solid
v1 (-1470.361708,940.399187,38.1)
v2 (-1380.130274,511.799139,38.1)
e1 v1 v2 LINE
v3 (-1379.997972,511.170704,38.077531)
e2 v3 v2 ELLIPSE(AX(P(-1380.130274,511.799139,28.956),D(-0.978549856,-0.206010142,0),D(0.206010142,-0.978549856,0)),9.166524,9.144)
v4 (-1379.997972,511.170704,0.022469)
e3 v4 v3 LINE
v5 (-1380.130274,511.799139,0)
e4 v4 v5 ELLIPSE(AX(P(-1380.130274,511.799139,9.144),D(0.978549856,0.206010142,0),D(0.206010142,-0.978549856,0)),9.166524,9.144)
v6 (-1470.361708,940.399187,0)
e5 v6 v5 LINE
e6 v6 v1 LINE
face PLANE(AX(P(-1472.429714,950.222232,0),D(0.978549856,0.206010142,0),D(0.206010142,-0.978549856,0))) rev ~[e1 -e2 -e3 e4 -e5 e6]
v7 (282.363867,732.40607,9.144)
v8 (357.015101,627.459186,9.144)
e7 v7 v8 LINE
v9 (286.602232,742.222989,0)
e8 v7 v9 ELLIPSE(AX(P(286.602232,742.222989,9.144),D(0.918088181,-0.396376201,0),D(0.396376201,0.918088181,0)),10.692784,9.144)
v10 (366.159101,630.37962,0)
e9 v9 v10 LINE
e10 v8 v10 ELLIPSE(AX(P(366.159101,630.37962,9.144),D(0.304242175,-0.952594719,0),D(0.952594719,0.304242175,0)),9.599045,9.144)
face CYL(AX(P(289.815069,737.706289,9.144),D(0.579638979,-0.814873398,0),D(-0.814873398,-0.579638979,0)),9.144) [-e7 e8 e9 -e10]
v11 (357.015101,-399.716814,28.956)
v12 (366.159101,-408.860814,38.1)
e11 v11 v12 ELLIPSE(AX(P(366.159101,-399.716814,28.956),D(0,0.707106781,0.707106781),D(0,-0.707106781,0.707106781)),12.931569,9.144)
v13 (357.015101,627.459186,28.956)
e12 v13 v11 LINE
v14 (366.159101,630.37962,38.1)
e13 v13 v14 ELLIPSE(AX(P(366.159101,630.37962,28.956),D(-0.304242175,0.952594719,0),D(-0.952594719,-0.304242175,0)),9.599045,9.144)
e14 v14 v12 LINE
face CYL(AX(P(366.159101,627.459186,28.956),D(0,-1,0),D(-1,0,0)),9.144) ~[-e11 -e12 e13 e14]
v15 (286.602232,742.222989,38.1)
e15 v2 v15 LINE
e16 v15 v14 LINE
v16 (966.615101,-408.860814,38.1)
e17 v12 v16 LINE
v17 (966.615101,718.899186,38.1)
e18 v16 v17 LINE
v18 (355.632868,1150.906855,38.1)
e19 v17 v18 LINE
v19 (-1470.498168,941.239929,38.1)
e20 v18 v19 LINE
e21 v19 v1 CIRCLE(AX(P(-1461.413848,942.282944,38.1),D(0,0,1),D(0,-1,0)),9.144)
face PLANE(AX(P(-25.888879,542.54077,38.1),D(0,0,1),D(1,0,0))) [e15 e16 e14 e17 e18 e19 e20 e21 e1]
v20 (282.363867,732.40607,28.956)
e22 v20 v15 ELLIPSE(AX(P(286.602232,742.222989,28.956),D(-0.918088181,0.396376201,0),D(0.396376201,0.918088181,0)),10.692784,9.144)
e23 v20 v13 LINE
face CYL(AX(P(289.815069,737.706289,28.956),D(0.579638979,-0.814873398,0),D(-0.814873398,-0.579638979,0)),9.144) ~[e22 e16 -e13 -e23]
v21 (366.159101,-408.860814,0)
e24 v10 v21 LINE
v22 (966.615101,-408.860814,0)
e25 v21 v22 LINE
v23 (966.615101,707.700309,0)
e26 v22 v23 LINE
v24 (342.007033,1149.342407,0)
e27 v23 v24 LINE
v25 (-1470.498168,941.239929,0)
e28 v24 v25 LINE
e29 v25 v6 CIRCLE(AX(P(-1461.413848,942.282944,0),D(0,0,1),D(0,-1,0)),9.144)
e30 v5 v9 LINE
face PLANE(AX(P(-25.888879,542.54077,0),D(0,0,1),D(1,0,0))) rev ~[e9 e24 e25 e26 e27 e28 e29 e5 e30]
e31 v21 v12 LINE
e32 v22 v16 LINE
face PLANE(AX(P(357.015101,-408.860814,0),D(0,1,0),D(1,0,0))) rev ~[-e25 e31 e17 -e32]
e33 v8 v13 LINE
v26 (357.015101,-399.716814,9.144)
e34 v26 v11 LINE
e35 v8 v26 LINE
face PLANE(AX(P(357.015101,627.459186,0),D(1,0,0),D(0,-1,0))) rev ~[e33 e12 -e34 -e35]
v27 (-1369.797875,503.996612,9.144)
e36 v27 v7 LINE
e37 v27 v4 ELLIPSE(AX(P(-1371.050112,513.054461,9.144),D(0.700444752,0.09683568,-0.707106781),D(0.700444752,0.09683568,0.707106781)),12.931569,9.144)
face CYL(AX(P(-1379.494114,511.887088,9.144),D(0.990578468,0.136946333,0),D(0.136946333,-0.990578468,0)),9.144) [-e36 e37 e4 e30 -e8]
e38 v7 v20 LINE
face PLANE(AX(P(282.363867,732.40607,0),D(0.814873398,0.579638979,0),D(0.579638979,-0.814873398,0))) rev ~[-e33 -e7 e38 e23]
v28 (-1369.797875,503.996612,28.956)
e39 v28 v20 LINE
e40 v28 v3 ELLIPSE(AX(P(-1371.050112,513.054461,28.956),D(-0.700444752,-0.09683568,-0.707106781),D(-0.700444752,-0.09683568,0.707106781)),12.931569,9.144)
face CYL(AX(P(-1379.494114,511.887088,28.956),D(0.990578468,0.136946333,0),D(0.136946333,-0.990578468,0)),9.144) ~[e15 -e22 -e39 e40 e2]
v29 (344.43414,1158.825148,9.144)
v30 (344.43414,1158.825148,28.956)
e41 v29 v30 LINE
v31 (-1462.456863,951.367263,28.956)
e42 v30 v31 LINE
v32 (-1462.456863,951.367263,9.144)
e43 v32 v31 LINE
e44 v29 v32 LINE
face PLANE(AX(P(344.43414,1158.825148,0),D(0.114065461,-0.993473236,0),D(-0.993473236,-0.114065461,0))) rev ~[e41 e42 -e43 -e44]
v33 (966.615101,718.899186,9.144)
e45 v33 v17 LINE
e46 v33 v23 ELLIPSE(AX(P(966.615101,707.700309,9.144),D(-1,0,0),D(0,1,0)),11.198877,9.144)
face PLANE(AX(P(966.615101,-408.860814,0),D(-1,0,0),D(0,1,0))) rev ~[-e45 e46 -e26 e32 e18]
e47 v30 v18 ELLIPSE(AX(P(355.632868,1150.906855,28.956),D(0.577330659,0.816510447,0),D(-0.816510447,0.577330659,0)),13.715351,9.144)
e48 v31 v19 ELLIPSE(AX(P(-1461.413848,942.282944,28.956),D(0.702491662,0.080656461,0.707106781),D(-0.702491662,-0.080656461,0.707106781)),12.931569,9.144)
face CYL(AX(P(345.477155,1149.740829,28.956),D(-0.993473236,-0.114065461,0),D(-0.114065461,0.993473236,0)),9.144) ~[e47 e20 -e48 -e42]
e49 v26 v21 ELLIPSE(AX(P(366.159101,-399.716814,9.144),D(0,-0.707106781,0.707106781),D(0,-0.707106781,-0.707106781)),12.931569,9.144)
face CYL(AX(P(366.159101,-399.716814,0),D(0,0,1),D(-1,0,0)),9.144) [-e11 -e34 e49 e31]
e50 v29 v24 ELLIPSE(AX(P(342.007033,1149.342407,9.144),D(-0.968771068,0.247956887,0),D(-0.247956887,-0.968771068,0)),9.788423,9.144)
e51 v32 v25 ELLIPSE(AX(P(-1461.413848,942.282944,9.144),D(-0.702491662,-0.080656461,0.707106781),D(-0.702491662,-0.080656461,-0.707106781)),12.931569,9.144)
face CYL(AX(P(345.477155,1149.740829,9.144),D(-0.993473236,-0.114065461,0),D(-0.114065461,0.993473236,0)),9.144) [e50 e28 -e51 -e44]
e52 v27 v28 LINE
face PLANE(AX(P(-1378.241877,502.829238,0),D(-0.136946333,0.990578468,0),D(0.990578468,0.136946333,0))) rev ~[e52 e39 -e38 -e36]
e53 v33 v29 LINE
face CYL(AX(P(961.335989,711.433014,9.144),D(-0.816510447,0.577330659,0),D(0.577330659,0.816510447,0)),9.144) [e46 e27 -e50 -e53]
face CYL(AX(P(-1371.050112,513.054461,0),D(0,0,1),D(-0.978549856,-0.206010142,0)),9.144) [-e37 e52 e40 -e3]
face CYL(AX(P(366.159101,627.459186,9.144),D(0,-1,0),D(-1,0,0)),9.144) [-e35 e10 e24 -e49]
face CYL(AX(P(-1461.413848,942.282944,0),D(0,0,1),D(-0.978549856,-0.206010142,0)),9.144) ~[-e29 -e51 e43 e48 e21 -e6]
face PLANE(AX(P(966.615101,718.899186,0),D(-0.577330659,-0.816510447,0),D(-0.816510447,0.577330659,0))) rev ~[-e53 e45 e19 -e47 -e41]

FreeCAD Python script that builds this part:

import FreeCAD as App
import Part
import Sketcher

V = App.Vector
Q = App.Units.Quantity


def edges_at(feature, points):
    """Names of the edges that pass closest to the given points."""
    edges = feature.Shape.Edges
    near = lambda p: min(range(len(edges)), key=lambda i: edges[i].distToShape(Part.Vertex(*p))[0])
    return sorted({f"Edge{near(p) + 1}" for p in points})

doc = App.newDocument("Part")
params = doc.addObject("Spreadsheet::Sheet", "Params")
for row, (alias, value) in enumerate([
    ("sketch1_width", "24 in"),
    ("sketch1_length", "18 in"),
    ("sketch1_length2", "66 in"),
    ("sketch1_length3", "30 in"),
    ("sketch1_length4", "72 in"),
    ("pad1_length", "1.5 in"),
    ("fillet_radius", "0.36 in"),
], start=1):
    params.set(f"A{row}", alias)
    params.set(f"B{row}", "=" + value)
    params.setAlias(f"B{row}", alias)

body = doc.addObject("PartDesign::Body", "Body")

# Sketch on XY plane
sketch1 = doc.addObject("Sketcher::SketchObject", "Sketch")
body.addObject(sketch1)
sketch1.AttachmentSupport = (doc.XY_Plane, [""])
sketch1.MapMode = "FlatFace"
sketch1.addGeometry(Part.LineSegment(V(-1472, 950, 0), V(-1378, 503, 0)), False)
sketch1.addGeometry(Part.LineSegment(V(-1378, 503, 0), V(282, 732, 0)), False)
sketch1.addGeometry(Part.LineSegment(V(282, 732, 0), V(357, 627, 0)), False)
sketch1.addGeometry(Part.LineSegment(V(357, 627, 0), V(357, -409, 0)), False)
sketch1.addGeometry(Part.LineSegment(V(357, -409, 0), V(967, -409, 0)), False)
sketch1.addGeometry(Part.LineSegment(V(967, -409, 0), V(967, 719, 0)), False)
sketch1.addGeometry(Part.LineSegment(V(967, 719, 0), V(344, 1159, 0)), False)
sketch1.addGeometry(Part.LineSegment(V(344, 1159, 0), V(-1472, 950, 0)), False)
sketch1.addConstraint(Sketcher.Constraint("Coincident", 0, 2, 1, 1))
sketch1.addConstraint(Sketcher.Constraint("Coincident", 1, 2, 2, 1))
sketch1.addConstraint(Sketcher.Constraint("Coincident", 2, 2, 3, 1))
sketch1.addConstraint(Sketcher.Constraint("Coincident", 3, 2, 4, 1))
sketch1.addConstraint(Sketcher.Constraint("Coincident", 4, 2, 5, 1))
sketch1.addConstraint(Sketcher.Constraint("Coincident", 5, 2, 6, 1))
sketch1.addConstraint(Sketcher.Constraint("Coincident", 6, 2, 7, 1))
sketch1.addConstraint(Sketcher.Constraint("Coincident", 7, 2, 0, 1))
sketch1.addConstraint(Sketcher.Constraint("Vertical", 3))
sketch1.addConstraint(Sketcher.Constraint("Horizontal", 4))
sketch1.addConstraint(Sketcher.Constraint("Vertical", 5))
sketch1.addConstraint(Sketcher.Constraint("DistanceX", 4, 1, 4, 2, Q("24 in")))
sketch1.addConstraint(Sketcher.Constraint("Distance", 0, Q("18 in")))
sketch1.addConstraint(Sketcher.Constraint("Distance", 1, Q("66 in")))
sketch1.addConstraint(Sketcher.Constraint("Distance", 6, Q("30 in")))
sketch1.addConstraint(Sketcher.Constraint("Distance", 7, Q("72 in")))
sketch1.addConstraint(Sketcher.Constraint("DistanceY", 3, 2, 3, 1, Q("40.8 in")))
sketch1.addConstraint(Sketcher.Constraint("DistanceY", 5, 1, 5, 2, Q("44.4 in")))
sketch1.addConstraint(Sketcher.Constraint("DistanceX", -1, 1, 2, 2, 357.015101))
sketch1.addConstraint(Sketcher.Constraint("Distance", 2, 128.789189))
sketch1.addConstraint(Sketcher.Constraint("DistanceY", -1, 1, 1, 2, 732.40607))
sketch1.addConstraint(Sketcher.Constraint("DistanceX", -1, 1, 6, 2, 344.43414))
sketch1.addConstraint(Sketcher.Constraint("DistanceY", -1, 1, 6, 2, 1158.825148))
sketch1.addConstraint(Sketcher.Constraint("DistanceY", -1, 1, 7, 2, 950.222232))
sketch1.setExpression("Constraints[11]", "Params.sketch1_width")
sketch1.setExpression("Constraints[12]", "Params.sketch1_length")
sketch1.setExpression("Constraints[13]", "Params.sketch1_length2")
sketch1.setExpression("Constraints[14]", "Params.sketch1_length3")
sketch1.setExpression("Constraints[15]", "Params.sketch1_length4")
pad1 = doc.addObject("PartDesign::Pad", "Pad")
body.addObject(pad1)
pad1.Profile = sketch1
pad1.setExpression("Length", "Params.pad1_length")
doc.recompute()

fillet = doc.addObject("PartDesign::Fillet", "Fillet")
body.addObject(fillet)
fillet.Base = (pad1, edges_at(pad1, [
    (-547.939, 617.618, 38.1),
    (-547.939, 617.618, 0),
    (-1378.242, 502.829, 19.05),
    (319.689, 679.933, 0),
    (357.015, 109.299, 0),
    (357.015, 109.299, 38.1),
    (319.689, 679.933, 38.1),
    (357.015, -408.861, 19.05),
    (-1472.43, 950.222, 19.05),
    (-563.998, 1054.524, 38.1),
    (-563.998, 1054.524, 0),
    (655.525, 938.862, 0),
]))
fillet.setExpression("Radius", "Params.fillet_radius")

doc.recompute()
